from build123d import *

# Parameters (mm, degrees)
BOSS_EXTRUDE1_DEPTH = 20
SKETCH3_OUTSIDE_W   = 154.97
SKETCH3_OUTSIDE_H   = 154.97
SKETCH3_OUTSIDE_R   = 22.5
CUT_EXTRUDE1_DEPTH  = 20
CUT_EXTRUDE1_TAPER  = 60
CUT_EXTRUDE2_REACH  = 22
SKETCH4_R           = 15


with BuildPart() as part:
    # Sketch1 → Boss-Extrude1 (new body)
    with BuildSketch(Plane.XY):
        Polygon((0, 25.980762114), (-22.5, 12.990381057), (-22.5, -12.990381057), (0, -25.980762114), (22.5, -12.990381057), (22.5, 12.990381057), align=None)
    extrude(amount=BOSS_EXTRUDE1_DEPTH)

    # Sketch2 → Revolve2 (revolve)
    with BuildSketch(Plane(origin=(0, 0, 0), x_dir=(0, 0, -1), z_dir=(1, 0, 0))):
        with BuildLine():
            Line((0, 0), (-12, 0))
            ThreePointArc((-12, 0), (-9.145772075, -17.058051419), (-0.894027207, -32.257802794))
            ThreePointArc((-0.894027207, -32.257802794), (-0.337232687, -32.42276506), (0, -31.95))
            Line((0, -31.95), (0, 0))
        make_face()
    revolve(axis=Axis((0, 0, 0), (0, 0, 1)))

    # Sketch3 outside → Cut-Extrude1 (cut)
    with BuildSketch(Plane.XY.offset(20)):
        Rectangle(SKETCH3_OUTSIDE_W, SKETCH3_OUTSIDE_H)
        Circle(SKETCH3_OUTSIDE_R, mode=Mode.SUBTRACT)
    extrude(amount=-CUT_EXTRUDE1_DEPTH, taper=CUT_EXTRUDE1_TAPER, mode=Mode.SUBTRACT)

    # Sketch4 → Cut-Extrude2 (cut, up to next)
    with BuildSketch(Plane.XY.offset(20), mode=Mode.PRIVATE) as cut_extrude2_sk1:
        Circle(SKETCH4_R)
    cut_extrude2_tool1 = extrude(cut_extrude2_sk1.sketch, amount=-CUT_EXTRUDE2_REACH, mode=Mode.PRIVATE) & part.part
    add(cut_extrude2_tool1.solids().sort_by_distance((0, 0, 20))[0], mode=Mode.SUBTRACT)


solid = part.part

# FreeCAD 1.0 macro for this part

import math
import FreeCAD as App
import Part
import Sketcher

V = App.Vector
Q = App.Units.Quantity


def add_polygon(sketch, points):
    """Adds a closed chain of lines whose ends are joined by coincident constraints."""
    first, n = sketch.GeometryCount, len(points)
    for a, b in zip(points, points[1:] + points[:1]):
        sketch.addGeometry(Part.LineSegment(App.Vector(*a, 0), App.Vector(*b, 0)), False)
    for i in range(n):
        sketch.addConstraint(Sketcher.Constraint("Coincident", first + i, 2, first + (i + 1) % n, 1))

doc = App.newDocument("Part")
body = doc.addObject("PartDesign::Body", "Body")

# Sketch on XY plane
sketch1 = body.newObject("Sketcher::SketchObject", "Sketch")
sketch1.AttachmentSupport = (doc.getObject("XY_Plane"), [""])
sketch1.MapMode = "FlatFace"
add_polygon(sketch1, [(0, 26), (-22, 13), (-22, -13), (0, -26), (22, -13), (22, 13)])  # lines 0-5
sketch1.addConstraint([
    Sketcher.Constraint("Vertical", 1),
    Sketcher.Constraint("Vertical", 4),
    Sketcher.Constraint("Symmetric", 0, 2, 3, 2, -1, 1),
    Sketcher.Constraint("Symmetric", 2, 2, 5, 2, -1, 1),
    Sketcher.Constraint("PointOnObject", 2, 2, -2),
    Sketcher.Constraint("Parallel", 2, 5),
    Sketcher.Constraint("Horizontal", 1, 2, 3, 2),
    Sketcher.Constraint("Angle", 0, Q("-150 deg")),
    Sketcher.Constraint("DistanceX", 1, 2, 3, 2, Q("45 mm")),
    Sketcher.Constraint("DistanceY", 1, 2, 1, 1, Q("25.980762 mm")),
])
pad1 = body.newObject("PartDesign::Pad", "Pad")
pad1.Profile = sketch1
pad1.Length = 20

# Sketch on YZ plane
sketch2 = body.newObject("Sketcher::SketchObject", "Sketch001")
sketch2.AttachmentSupport = (doc.getObject("YZ_Plane"), [""])
sketch2.MapMode = "FlatFace"
sketch2.addGeometry([
    Part.LineSegment(V(0, 0, 0), V(0, 12, 0)),
    Part.ArcOfCircle(Part.Circle(V(0, -40.4, 0), V(0, 0, 1), 52.4), math.radians(90), math.radians(128)),
    Part.ArcOfCircle(Part.Circle(V(-31.9, 0.5, 0), V(0, 0, 1), 0.5), math.radians(128), math.radians(270)),
    Part.LineSegment(V(-31.9, 0, 0), V(0, 0, 0)),
], False)
sketch2.addConstraint([
    Sketcher.Constraint("Coincident", 0, 2, 1, 1),
    Sketcher.Constraint("Tangent", 1, 2, 2, 1),
    Sketcher.Constraint("Tangent", 2, 2, 3, 1),
    Sketcher.Constraint("Coincident", 3, 2, 0, 1),
    Sketcher.Constraint("Vertical", 0),
    Sketcher.Constraint("Horizontal", 3),
    Sketcher.Constraint("Coincident", 3, 2, -1, 1),
    Sketcher.Constraint("PointOnObject", 1, 3, -2),
    Sketcher.Constraint("Radius", 2, Q("0.5 mm")),
    Sketcher.Constraint("DistanceY", 0, 1, 0, 2, Q("12 mm")),
    Sketcher.Constraint("DistanceX", 3, 1, 3, 2, Q("31.95 mm")),
])
revolution = body.newObject("PartDesign::Revolution", "Revolution")
revolution.Profile = sketch2
revolution.ReferenceAxis = (sketch2, ["V_Axis"])
revolution.Angle = 360

# Sketch on XY plane
sketch3 = body.newObject("Sketcher::SketchObject", "Sketch002")
sketch3.AttachmentSupport = (doc.getObject("XY_Plane"), [""])
sketch3.MapMode = "FlatFace"
sketch3.AttachmentOffset = App.Placement(V(0, 0, 20), App.Rotation())
add_polygon(sketch3, [(-77, 77), (-77, -77), (77, -77), (77, 77)])  # lines 0-3
sketch3.addGeometry(Part.Circle(V(0, 0, 0), V(0, 0, 1), 22), False)  # 4
sketch3.addConstraint([
    Sketcher.Constraint("Vertical", 0),
    Sketcher.Constraint("Horizontal", 1),
    Sketcher.Constraint("Vertical", 2),
    Sketcher.Constraint("Horizontal", 3),
    Sketcher.Constraint("Coincident", 4, 3, -1, 1),
    Sketcher.Constraint("Symmetric", 0, 2, 2, 2, -1, 1),
    Sketcher.Constraint("Equal", 3, 0),
    Sketcher.Constraint("Diameter", 4, Q("45 mm")),
    Sketcher.Constraint("DistanceX", 1, 1, 1, 2, Q("154.97 mm")),
])
pocket1 = body.newObject("PartDesign::Pocket", "Pocket")
pocket1.Profile = sketch3
pocket1.Length = 20
pocket1.TaperAngle = 60

# Sketch on XY plane
sketch4 = body.newObject("Sketcher::SketchObject", "Sketch003")
sketch4.AttachmentSupport = (doc.getObject("XY_Plane"), [""])
sketch4.MapMode = "FlatFace"
sketch4.AttachmentOffset = App.Placement(V(0, 0, 20), App.Rotation())
sketch4.addGeometry(Part.Circle(V(0, 0, 0), V(0, 0, 1), 15), False)
sketch4.addConstraint([
    Sketcher.Constraint("Coincident", 0, 3, -1, 1),
    Sketcher.Constraint("Diameter", 0, Q("30 mm")),
])
pocket2 = body.newObject("PartDesign::Pocket", "Pocket001")
pocket2.Profile = sketch4
pocket2.Type = "UpToFirst"

doc.recompute()
